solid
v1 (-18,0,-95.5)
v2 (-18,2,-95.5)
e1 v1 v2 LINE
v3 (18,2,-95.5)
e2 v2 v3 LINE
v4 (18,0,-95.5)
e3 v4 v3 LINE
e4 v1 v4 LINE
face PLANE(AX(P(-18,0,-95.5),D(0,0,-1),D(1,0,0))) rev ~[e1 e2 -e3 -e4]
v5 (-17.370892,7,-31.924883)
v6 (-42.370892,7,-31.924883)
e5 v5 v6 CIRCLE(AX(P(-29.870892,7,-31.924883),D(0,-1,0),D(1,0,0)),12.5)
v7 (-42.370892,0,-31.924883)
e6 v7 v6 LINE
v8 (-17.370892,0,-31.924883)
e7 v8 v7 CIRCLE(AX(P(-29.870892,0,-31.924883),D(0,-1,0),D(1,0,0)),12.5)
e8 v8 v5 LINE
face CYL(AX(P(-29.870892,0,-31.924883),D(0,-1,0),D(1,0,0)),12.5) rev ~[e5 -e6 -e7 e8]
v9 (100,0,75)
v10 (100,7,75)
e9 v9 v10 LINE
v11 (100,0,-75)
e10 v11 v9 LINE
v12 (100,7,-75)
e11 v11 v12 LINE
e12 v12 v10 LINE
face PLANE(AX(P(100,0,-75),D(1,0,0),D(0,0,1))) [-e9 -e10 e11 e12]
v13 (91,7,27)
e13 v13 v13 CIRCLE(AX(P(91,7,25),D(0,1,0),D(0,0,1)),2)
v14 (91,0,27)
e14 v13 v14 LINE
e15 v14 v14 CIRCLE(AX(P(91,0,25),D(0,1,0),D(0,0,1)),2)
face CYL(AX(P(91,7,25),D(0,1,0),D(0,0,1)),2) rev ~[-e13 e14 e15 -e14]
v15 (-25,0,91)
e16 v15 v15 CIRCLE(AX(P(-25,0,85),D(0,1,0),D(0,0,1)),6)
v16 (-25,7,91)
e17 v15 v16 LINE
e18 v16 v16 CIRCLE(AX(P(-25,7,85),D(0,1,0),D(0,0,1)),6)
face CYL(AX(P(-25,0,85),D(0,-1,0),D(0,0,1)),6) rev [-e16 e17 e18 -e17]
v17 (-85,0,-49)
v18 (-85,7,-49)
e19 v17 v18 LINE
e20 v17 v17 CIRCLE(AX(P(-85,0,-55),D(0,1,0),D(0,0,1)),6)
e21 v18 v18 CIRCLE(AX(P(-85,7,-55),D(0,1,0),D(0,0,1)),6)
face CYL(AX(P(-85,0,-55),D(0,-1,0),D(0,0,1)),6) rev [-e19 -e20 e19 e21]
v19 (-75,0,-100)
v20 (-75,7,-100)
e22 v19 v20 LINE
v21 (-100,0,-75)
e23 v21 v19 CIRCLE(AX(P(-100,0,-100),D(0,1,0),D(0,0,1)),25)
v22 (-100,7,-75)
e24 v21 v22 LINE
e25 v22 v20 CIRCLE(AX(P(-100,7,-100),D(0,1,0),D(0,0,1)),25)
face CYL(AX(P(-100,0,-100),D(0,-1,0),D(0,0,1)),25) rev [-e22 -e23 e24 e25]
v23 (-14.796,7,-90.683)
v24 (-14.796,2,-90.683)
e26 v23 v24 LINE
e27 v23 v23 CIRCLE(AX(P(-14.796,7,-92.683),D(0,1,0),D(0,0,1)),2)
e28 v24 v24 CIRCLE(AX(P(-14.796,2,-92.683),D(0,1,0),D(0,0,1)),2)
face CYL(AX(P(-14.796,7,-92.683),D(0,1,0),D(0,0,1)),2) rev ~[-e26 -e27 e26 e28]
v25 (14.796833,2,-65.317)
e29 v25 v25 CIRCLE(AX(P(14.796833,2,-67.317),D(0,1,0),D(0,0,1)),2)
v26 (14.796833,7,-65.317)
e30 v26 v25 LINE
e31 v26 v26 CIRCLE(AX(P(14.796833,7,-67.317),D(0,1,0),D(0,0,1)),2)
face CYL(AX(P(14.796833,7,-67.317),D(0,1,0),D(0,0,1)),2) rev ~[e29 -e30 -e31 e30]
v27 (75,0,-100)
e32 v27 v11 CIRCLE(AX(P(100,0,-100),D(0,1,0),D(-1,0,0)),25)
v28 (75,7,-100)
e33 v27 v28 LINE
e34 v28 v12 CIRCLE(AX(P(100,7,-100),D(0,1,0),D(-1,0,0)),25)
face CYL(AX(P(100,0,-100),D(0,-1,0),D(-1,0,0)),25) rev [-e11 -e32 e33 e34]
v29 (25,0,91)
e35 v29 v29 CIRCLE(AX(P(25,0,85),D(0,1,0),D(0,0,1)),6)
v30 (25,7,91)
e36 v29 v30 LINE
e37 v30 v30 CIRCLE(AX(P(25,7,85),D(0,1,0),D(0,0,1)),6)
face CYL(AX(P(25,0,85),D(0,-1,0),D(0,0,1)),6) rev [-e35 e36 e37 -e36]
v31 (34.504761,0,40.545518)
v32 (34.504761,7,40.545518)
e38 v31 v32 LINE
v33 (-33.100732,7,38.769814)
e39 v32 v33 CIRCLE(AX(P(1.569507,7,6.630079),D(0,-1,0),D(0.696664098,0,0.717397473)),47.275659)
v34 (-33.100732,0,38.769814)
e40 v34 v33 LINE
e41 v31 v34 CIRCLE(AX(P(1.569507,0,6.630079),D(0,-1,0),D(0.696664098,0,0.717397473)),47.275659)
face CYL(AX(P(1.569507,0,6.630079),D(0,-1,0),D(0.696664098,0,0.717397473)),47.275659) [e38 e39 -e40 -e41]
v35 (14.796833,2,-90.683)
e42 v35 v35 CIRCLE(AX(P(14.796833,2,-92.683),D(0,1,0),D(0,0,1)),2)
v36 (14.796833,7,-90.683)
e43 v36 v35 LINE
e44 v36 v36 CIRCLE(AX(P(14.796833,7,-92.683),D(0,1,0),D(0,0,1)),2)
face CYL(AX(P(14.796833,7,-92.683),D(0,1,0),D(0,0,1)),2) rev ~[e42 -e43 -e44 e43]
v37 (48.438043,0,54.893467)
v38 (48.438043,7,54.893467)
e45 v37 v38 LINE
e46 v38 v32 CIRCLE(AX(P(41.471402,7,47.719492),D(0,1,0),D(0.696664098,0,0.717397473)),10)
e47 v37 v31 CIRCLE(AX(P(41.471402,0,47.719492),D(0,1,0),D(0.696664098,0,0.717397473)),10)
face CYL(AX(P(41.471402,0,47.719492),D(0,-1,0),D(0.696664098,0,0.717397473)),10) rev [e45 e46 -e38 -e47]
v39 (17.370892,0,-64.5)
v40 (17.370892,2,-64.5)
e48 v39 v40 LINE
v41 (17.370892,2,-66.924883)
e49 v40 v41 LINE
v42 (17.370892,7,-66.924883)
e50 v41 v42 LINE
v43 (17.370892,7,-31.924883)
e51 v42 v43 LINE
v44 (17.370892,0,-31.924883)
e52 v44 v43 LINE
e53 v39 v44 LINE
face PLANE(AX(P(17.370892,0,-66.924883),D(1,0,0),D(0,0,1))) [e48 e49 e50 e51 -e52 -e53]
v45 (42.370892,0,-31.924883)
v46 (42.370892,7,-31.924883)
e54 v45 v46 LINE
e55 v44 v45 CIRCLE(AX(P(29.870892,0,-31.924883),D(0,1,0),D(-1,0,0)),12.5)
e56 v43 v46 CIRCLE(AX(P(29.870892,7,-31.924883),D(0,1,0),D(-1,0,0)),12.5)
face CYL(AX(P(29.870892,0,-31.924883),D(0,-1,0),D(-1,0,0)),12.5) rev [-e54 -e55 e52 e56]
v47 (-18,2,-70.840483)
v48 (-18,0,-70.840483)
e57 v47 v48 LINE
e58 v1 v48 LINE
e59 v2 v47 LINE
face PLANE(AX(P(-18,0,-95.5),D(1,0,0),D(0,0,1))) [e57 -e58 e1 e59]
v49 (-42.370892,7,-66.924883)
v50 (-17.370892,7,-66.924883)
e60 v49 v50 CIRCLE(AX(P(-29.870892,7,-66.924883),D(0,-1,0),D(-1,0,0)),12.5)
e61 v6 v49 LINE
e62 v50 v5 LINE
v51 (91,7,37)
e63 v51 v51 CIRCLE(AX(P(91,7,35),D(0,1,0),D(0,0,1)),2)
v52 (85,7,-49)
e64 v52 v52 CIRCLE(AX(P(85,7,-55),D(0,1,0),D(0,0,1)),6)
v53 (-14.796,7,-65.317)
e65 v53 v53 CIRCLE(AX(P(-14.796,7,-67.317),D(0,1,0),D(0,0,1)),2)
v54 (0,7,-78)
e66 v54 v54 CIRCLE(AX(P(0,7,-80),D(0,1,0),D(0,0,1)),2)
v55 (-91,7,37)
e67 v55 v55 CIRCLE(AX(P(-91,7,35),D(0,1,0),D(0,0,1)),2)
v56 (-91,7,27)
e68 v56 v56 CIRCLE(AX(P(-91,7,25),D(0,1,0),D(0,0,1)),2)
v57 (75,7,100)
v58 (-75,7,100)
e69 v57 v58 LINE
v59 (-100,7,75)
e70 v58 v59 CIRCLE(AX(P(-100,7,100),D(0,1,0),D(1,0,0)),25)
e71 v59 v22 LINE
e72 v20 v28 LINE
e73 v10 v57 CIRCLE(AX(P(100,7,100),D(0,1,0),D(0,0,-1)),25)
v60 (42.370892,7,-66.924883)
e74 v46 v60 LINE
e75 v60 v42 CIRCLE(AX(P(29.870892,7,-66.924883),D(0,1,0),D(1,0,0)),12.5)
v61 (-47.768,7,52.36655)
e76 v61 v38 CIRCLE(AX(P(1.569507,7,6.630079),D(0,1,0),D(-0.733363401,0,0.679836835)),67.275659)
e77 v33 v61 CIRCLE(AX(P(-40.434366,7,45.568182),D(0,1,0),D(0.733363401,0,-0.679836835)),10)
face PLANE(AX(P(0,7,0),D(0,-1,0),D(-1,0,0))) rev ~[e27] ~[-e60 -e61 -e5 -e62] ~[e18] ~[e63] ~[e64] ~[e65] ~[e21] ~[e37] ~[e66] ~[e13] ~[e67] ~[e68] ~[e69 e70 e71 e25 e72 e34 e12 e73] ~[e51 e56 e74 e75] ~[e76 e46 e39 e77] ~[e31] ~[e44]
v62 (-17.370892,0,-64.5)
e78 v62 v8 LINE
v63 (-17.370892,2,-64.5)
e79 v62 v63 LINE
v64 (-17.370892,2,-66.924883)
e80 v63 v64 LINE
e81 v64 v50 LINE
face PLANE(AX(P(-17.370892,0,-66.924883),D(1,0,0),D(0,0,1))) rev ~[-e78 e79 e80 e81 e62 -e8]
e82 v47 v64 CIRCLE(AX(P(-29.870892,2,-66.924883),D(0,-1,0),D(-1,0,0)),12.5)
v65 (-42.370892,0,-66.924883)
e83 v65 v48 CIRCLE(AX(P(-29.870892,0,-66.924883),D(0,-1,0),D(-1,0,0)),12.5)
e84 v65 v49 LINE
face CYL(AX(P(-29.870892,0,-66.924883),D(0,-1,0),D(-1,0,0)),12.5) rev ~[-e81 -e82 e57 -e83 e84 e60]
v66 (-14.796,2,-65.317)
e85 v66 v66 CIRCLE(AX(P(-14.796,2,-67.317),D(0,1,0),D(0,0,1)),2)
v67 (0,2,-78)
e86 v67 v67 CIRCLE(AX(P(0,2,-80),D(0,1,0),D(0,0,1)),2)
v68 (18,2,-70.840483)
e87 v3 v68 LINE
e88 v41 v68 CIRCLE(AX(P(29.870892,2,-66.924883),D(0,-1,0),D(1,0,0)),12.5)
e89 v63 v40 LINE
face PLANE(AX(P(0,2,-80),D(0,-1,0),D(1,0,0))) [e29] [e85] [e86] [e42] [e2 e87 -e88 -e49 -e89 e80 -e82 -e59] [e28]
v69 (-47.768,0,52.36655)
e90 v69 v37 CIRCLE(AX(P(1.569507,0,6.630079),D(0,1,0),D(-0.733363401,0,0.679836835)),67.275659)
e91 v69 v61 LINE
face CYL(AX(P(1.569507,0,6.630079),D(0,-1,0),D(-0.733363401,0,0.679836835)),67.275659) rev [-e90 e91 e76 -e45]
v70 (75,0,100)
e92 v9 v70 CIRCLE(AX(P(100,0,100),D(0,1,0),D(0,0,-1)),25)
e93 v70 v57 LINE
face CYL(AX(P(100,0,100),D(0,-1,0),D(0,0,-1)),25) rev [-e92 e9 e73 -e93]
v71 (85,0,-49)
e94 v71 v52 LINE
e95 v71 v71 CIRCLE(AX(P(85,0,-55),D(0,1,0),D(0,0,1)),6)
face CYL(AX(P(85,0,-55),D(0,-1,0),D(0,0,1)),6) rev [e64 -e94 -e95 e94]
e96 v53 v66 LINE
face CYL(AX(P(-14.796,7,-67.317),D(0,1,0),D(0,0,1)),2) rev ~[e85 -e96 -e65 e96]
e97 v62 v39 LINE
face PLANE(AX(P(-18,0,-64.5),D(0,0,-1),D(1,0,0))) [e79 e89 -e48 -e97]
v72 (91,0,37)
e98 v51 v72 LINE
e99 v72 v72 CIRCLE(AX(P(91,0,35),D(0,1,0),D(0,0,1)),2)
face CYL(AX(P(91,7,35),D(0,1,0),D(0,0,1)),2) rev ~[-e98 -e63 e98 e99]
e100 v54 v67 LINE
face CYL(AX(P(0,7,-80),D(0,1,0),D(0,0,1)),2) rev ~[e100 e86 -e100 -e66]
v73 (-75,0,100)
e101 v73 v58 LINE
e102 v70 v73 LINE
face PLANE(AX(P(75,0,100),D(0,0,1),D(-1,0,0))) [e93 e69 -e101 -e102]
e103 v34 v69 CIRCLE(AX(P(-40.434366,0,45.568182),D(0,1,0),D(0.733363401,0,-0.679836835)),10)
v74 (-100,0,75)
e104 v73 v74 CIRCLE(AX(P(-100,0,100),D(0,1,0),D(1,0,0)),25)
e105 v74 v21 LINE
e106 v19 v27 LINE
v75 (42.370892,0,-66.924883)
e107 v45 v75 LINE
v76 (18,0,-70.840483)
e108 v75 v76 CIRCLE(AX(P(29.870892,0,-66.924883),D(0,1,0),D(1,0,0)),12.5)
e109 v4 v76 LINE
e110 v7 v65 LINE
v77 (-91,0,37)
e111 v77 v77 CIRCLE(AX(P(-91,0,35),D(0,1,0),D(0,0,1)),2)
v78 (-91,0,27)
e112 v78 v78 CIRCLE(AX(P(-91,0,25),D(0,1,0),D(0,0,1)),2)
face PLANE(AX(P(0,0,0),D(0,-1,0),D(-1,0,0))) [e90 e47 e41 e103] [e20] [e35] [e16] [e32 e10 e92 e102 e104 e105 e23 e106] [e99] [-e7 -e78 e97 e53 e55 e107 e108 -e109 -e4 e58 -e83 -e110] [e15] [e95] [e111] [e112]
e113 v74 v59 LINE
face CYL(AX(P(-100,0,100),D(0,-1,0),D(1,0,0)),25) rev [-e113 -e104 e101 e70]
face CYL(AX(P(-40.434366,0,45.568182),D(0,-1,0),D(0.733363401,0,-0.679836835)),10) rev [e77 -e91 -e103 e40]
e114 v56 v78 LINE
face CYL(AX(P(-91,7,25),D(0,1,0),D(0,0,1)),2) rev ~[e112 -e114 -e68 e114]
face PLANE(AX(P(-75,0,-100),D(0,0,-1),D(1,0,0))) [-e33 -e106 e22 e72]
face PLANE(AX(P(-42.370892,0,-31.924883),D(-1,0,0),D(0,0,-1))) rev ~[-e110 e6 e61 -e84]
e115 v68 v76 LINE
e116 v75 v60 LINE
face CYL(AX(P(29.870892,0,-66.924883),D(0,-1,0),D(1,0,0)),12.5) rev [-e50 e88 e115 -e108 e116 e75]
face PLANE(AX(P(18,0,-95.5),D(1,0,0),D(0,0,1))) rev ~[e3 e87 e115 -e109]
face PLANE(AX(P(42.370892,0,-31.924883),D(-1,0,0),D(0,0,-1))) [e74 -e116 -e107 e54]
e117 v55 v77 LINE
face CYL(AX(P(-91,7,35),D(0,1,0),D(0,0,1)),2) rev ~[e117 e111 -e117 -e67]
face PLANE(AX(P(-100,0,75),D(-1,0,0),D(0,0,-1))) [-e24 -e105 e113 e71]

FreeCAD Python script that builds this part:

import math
import FreeCAD as App
import Part
import Sketcher

V = App.Vector

doc = App.newDocument("Part")
body = doc.addObject("PartDesign::Body", "Body")

# Sketch on XZ plane
sketch1 = body.newObject("Sketcher::SketchObject", "Sketch")
sketch1.AttachmentSupport = (doc.getObject("XZ_Plane"), [""])
sketch1.MapMode = "FlatFace"
sketch1.addGeometry([
    Part.LineSegment(V(75, -100, 0), V(-75, -100, 0)),  # 0
    Part.ArcOfCircle(Part.Circle(V(-100, -100, 0), V(0, 0, 1), 25), math.radians(0), math.radians(90)),  # 1
    Part.LineSegment(V(-100, -75, 0), V(-100, 75, 0)),  # 2
    Part.ArcOfCircle(Part.Circle(V(-100, 100, 0), V(0, 0, 1), 25), math.radians(-90), math.radians(0)),  # 3
    Part.LineSegment(V(-75, 100, 0), V(75, 100, 0)),  # 4
    Part.ArcOfCircle(Part.Circle(V(100, 100, 0), V(0, 0, 1), 25), math.radians(180), math.radians(270)),  # 5
    Part.LineSegment(V(100, 75, 0), V(100, -75, 0)),  # 6
    Part.ArcOfCircle(Part.Circle(V(100, -100, 0), V(0, 0, 1), 25), math.radians(90), math.radians(180)),  # 7
    Part.Circle(V(25, 85, 0), V(0, 0, 1), 6),  # 8
    Part.ArcOfCircle(Part.Circle(V(-40.434366, 45.568182, 0), V(0, 0, 1), 10), math.radians(137.169106), math.radians(317.169106)),  # 9
    Part.ArcOfCircle(Part.Circle(V(1.569507, 6.630079, 0), V(0, 0, 1), 47.275659), math.radians(45.840027), math.radians(137.169106)),  # 10
    Part.ArcOfCircle(Part.Circle(V(41.471402, 47.719492, 0), V(0, 0, 1), 10), math.radians(-134.159973), math.radians(45.840027)),  # 11
    Part.ArcOfCircle(Part.Circle(V(1.569507, 6.630079, 0), V(0, 0, 1), 67.275659), math.radians(45.840027), math.radians(137.169106)),  # 12
    Part.Circle(V(-25, 85, 0), V(0, 0, 1), 6),  # 13
    Part.Circle(V(85, -55, 0), V(0, 0, 1), 6),  # 14
    Part.ArcOfCircle(Part.Circle(V(29.870892, -66.924883, 0), V(0, 0, 1), 12.5), math.radians(180), math.radians(360)),  # 15
    Part.LineSegment(V(42.370892, -66.924883, 0), V(42.370892, -31.924883, 0)),  # 16
    Part.ArcOfCircle(Part.Circle(V(29.870892, -31.924883, 0), V(0, 0, 1), 12.5), math.radians(0), math.radians(180)),  # 17
    Part.LineSegment(V(17.370892, -31.924883, 0), V(17.370892, -66.924883, 0)),  # 18
    Part.LineSegment(V(-17.370892, -66.924883, 0), V(-17.370892, -31.924883, 0)),  # 19
    Part.ArcOfCircle(Part.Circle(V(-29.870892, -31.924883, 0), V(0, 0, 1), 12.5), math.radians(0), math.radians(180)),  # 20
    Part.LineSegment(V(-42.370892, -31.924883, 0), V(-42.370892, -66.924883, 0)),  # 21
    Part.ArcOfCircle(Part.Circle(V(-29.870892, -66.924883, 0), V(0, 0, 1), 12.5), math.radians(180), math.radians(360)),  # 22
    Part.Circle(V(-85, -55, 0), V(0, 0, 1), 6),  # 23
], False)
sketch1.addConstraint([
    Sketcher.Constraint("Coincident", 0, 2, 1, 1),
    Sketcher.Constraint("Coincident", 1, 2, 2, 1),
    Sketcher.Constraint("Coincident", 2, 2, 3, 1),
    Sketcher.Constraint("Coincident", 3, 2, 4, 1),
    Sketcher.Constraint("Coincident", 4, 2, 5, 1),
    Sketcher.Constraint("Coincident", 5, 2, 6, 1),
    Sketcher.Constraint("Coincident", 6, 2, 7, 1),
    Sketcher.Constraint("Coincident", 7, 2, 0, 1),
    Sketcher.Constraint("Tangent", 9, 2, 10, 2),
    Sketcher.Constraint("Tangent", 10, 1, 11, 1),
    Sketcher.Constraint("Tangent", 11, 2, 12, 1),
    Sketcher.Constraint("Tangent", 12, 2, 9, 1),
    Sketcher.Constraint("Tangent", 15, 2, 16, 1),
    Sketcher.Constraint("Tangent", 16, 2, 17, 1),
    Sketcher.Constraint("Tangent", 17, 2, 18, 1),
    Sketcher.Constraint("Tangent", 18, 2, 15, 1),
    Sketcher.Constraint("Tangent", 19, 2, 20, 1),
    Sketcher.Constraint("Tangent", 20, 2, 21, 1),
    Sketcher.Constraint("Tangent", 21, 2, 22, 1),
    Sketcher.Constraint("Tangent", 22, 2, 19, 1),
    Sketcher.Constraint("Horizontal", 0),
    Sketcher.Constraint("Vertical", 2),
    Sketcher.Constraint("Horizontal", 4),
    Sketcher.Constraint("Vertical", 6),
    Sketcher.Constraint("Vertical", 16),
    Sketcher.Constraint("Vertical", 18),
    Sketcher.Constraint("Vertical", 19),
    Sketcher.Constraint("Vertical", 21),
    Sketcher.Constraint("Coincident", 12, 3, 10, 3),
    Sketcher.Constraint("Equal", 1, 3),
    Sketcher.Constraint("Equal", 3, 5),
    Sketcher.Constraint("Equal", 5, 7),
    Sketcher.Constraint("Equal", 8, 13),
    Sketcher.Constraint("Equal", 13, 14),
    Sketcher.Constraint("Equal", 17, 20),
    Sketcher.Constraint("Equal", 14, 23),
    Sketcher.Constraint("Symmetric", 1, 3, 5, 3, -1, 1),
    Sketcher.Constraint("Symmetric", 3, 3, 7, 3, -1, 1),
    Sketcher.Constraint("Symmetric", 3, 3, 5, 3, -2),
    Sketcher.Constraint("Symmetric", 8, 3, 13, 3, -2),
    Sketcher.Constraint("Symmetric", 17, 3, 20, 3, -2),
    Sketcher.Constraint("Symmetric", 14, 3, 23, 3, -2),
    Sketcher.Constraint("Horizontal", 15, 3, 22, 3),
    Sketcher.Constraint("Horizontal", 7, 3, 0, 2),
    Sketcher.Constraint("Horizontal", 5, 3, 3, 2),
    Sketcher.Constraint("Vertical", 3, 3, 1, 2),
    Sketcher.Constraint("Vertical", 7, 3, 5, 2),
    Sketcher.Constraint("Equal", 4, 2),
    Sketcher.Constraint("Diameter", 8, 12.0),
    Sketcher.Constraint("Radius", 1, 25.0),
    Sketcher.Constraint("Radius", 9, 10.0),
    Sketcher.Constraint("Radius", 15, 12.5),
    Sketcher.Constraint("DistanceX", 0, 2, 0, 1, 150.0),
    Sketcher.Constraint("DistanceY", 16, 1, 16, 2, 35.0),
    Sketcher.Constraint("DistanceX", -1, 1, 8, 3, 25.0),
    Sketcher.Constraint("DistanceY", -1, 1, 8, 3, 85.0),
    Sketcher.Constraint("DistanceX", -1, 1, 14, 3, 85.0),
    Sketcher.Constraint("DistanceY", 14, 3, -1, 1, 55.0),
    Sketcher.Constraint("Radius", 10, 47.275659),
    Sketcher.Constraint("DistanceX", 12, 2, -1, 1, 47.768),
    Sketcher.Constraint("DistanceX", 20, 3, 10, 3, 31.440399),
    Sketcher.Constraint("DistanceY", -1, 1, 10, 3, 6.630079),
    Sketcher.Constraint("DistanceX", 9, 2, -1, 1, 33.100732),
    Sketcher.Constraint("DistanceX", -1, 1, 10, 1, 34.504761),
    Sketcher.Constraint("DistanceY", 15, 3, 10, 3, 73.554962),
])
pad1 = body.newObject("PartDesign::Pad", "Pad")
pad1.Profile = sketch1
pad1.Length = 7
pad1.Reversed = True

# Sketch on XZ plane
sketch2 = body.newObject("Sketcher::SketchObject", "Sketch001")
sketch2.AttachmentSupport = (doc.getObject("XZ_Plane"), [""])
sketch2.MapMode = "FlatFace"
sketch2.AttachmentOffset = App.Placement(V(0, 0, -7), App.Rotation())
sketch2.addGeometry([
    Part.Circle(V(-91, 25, 0), V(0, 0, 1), 2),
    Part.Circle(V(0, -80, 0), V(0, 0, 1), 2),
    Part.Circle(V(91, 25, 0), V(0, 0, 1), 2),
], False)
sketch2.addConstraint([
    Sketcher.Constraint("Equal", 0, 1),
    Sketcher.Constraint("Equal", 1, 2),
    Sketcher.Constraint("Symmetric", 0, 3, 2, 3, -2),
    Sketcher.Constraint("PointOnObject", 1, 3, -2),
    Sketcher.Constraint("Diameter", 0, 4.0),
    Sketcher.Constraint("DistanceX", 0, 3, -1, 1, 91.0),
    Sketcher.Constraint("DistanceY", -1, 1, 0, 3, 25.0),
    Sketcher.Constraint("DistanceY", 1, 3, -1, 1, 80.0),
])
pocket1 = body.newObject("PartDesign::Pocket", "Pocket")
pocket1.Profile = sketch2
pocket1.Type = "ThroughAll"
pocket1.Reversed = True

# Sketch on XZ plane
sketch3 = body.newObject("Sketcher::SketchObject", "Sketch002")
sketch3.AttachmentSupport = (doc.getObject("XZ_Plane"), [""])
sketch3.MapMode = "FlatFace"
sketch3.AttachmentOffset = App.Placement(V(0, 0, -7), App.Rotation())
sketch3.addGeometry([
    Part.Circle(V(-91, 35, 0), V(0, 0, 1), 2),
    Part.Circle(V(91, 35, 0), V(0, 0, 1), 2),
], False)
sketch3.addConstraint([
    Sketcher.Constraint("Equal", 0, 1),
    Sketcher.Constraint("Symmetric", 0, 3, 1, 3, -2),
    Sketcher.Constraint("Diameter", 0, 4.0),
    Sketcher.Constraint("DistanceX", 0, 3, -1, 1, 91.0),
    Sketcher.Constraint("DistanceY", -1, 1, 0, 3, 35.0),
])
pocket2 = body.newObject("PartDesign::Pocket", "Pocket001")
pocket2.Profile = sketch3
pocket2.Type = "ThroughAll"
pocket2.Reversed = True

# Sketch on XZ plane
sketch4 = body.newObject("Sketcher::SketchObject", "Sketch003")
sketch4.AttachmentSupport = (doc.getObject("XZ_Plane"), [""])
sketch4.MapMode = "FlatFace"
sketch4.AttachmentOffset = App.Placement(V(0, 0, -7), App.Rotation())
sketch4.addGeometry([
    Part.Circle(V(-14.796, -67.317, 0), V(0, 0, 1), 2),
    Part.Circle(V(-14.796, -92.683, 0), V(0, 0, 1), 2),
    Part.Circle(V(14.796833, -92.683, 0), V(0, 0, 1), 2),
    Part.Circle(V(14.796833, -67.317, 0), V(0, 0, 1), 2),
], False)
sketch4.addConstraint([
    Sketcher.Constraint("Equal", 0, 1),
    Sketcher.Constraint("Equal", 1, 2),
    Sketcher.Constraint("Equal", 2, 3),
    Sketcher.Constraint("Horizontal", 1, 3, 2, 3),
    Sketcher.Constraint("Horizontal", 0, 3, 3, 3),
    Sketcher.Constraint("Vertical", 0, 3, 1, 3),
    Sketcher.Constraint("Vertical", 2, 3, 3, 3),
    Sketcher.Constraint("Diameter", 0, 4.0),
    Sketcher.Constraint("DistanceX", 0, 3, -1, 1, 14.796),
    Sketcher.Constraint("DistanceY", 0, 3, -1, 1, 67.317),
    Sketcher.Constraint("DistanceY", 1, 3, -1, 1, 92.683),
    Sketcher.Constraint("DistanceX", -1, 1, 2, 3, 14.796833),
])
pocket3 = body.newObject("PartDesign::Pocket", "Pocket002")
pocket3.Profile = sketch4
pocket3.Type = "ThroughAll"
pocket3.Reversed = True

# Sketch on XZ plane
sketch5 = body.newObject("Sketcher::SketchObject", "Sketch004")
sketch5.AttachmentSupport = (doc.getObject("XZ_Plane"), [""])
sketch5.MapMode = "FlatFace"
sketch5.addGeometry([
    Part.LineSegment(V(-18, -64.5, 0), V(-18, -95.5, 0)),
    Part.LineSegment(V(-18, -95.5, 0), V(18, -95.5, 0)),
    Part.LineSegment(V(18, -95.5, 0), V(18, -64.5, 0)),
    Part.LineSegment(V(18, -64.5, 0), V(-18, -64.5, 0)),
], False)
sketch5.addConstraint([
    Sketcher.Constraint("Coincident", 0, 2, 1, 1),
    Sketcher.Constraint("Coincident", 1, 2, 2, 1),
    Sketcher.Constraint("Coincident", 2, 2, 3, 1),
    Sketcher.Constraint("Coincident", 3, 2, 0, 1),
    Sketcher.Constraint("Vertical", 0),
    Sketcher.Constraint("Horizontal", 1),
    Sketcher.Constraint("Vertical", 2),
    Sketcher.Constraint("Horizontal", 3),
    Sketcher.Constraint("DistanceX", 1, 1, 1, 2, 36.0),
    Sketcher.Constraint("DistanceY", 0, 2, 0, 1, 31.0),
    Sketcher.Constraint("DistanceX", 0, 2, -1, 1, 18.0),
    Sketcher.Constraint("DistanceY", 0, 2, -1, 1, 95.5),
])
pocket4 = body.newObject("PartDesign::Pocket", "Pocket003")
pocket4.Profile = sketch5
pocket4.Length = 2

doc.recompute()
